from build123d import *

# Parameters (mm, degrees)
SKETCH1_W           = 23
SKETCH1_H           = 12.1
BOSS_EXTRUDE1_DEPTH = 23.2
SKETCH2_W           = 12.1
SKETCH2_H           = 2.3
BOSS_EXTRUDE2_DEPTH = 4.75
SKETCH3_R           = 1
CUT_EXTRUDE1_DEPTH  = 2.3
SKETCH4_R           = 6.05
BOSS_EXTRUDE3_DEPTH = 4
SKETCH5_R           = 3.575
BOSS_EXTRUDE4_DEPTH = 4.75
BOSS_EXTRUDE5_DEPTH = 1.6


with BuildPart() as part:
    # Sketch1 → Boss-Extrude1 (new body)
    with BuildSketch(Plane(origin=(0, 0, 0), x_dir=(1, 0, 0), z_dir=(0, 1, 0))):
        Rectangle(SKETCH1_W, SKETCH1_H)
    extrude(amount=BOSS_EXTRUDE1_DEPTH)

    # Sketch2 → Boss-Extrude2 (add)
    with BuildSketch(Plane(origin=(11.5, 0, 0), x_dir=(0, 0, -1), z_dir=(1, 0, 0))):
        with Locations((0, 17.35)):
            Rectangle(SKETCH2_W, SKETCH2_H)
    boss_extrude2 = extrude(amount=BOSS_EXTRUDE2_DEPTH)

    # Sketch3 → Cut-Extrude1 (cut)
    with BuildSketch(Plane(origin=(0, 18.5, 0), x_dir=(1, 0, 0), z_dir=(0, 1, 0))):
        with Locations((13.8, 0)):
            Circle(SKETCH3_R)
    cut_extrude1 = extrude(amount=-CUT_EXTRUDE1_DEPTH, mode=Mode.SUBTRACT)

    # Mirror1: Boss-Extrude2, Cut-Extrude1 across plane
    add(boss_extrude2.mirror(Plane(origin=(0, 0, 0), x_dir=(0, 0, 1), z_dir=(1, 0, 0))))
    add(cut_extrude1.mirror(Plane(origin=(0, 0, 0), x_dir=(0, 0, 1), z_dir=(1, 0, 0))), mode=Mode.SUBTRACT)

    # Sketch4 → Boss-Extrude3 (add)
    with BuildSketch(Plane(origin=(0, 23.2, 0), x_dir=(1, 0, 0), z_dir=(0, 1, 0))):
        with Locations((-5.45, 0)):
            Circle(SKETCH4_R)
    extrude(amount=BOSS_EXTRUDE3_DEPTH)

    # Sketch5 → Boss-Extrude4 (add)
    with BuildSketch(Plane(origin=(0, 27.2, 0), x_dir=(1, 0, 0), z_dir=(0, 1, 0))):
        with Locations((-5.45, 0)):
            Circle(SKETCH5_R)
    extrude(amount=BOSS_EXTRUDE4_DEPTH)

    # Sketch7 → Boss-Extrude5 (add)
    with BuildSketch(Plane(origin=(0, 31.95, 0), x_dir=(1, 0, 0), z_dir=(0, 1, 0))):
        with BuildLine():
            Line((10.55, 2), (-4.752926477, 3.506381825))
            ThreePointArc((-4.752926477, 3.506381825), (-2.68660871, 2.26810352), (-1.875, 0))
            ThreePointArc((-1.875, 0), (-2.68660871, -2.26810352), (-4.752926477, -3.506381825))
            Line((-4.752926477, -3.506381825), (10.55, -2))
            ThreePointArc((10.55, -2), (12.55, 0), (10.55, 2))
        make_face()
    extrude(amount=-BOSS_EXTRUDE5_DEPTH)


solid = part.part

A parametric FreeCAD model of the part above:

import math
import FreeCAD as App
import Part
import Sketcher

V = App.Vector
Q = App.Units.Quantity


def add_polygon(sketch, points):
    """Adds a closed chain of lines whose ends are joined by coincident constraints."""
    first, n = sketch.GeometryCount, len(points)
    for a, b in zip(points, points[1:] + points[:1]):
        sketch.addGeometry(Part.LineSegment(App.Vector(*a, 0), App.Vector(*b, 0)), False)
    for i in range(n):
        sketch.addConstraint(Sketcher.Constraint("Coincident", first + i, 2, first + (i + 1) % n, 1))

doc = App.newDocument("Part")
body = doc.addObject("PartDesign::Body", "Body")

# Sketch on XZ plane
sketch1 = body.newObject("Sketcher::SketchObject", "Sketch")
sketch1.AttachmentSupport = (doc.getObject("XZ_Plane"), [""])
sketch1.MapMode = "FlatFace"
add_polygon(sketch1, [(-11.5, -6.05), (-11.5, 6.05), (11.5, 6.05), (11.5, -6.05)])  # lines 0-3
sketch1.addConstraint([
    Sketcher.Constraint("Vertical", 0),
    Sketcher.Constraint("Horizontal", 1),
    Sketcher.Constraint("Vertical", 2),
    Sketcher.Constraint("Horizontal", 3),
    Sketcher.Constraint("Symmetric", 0, 2, 2, 2, -1, 1),
    Sketcher.Constraint("DistanceX", 1, 1, 1, 2, Q("23 mm")),
    Sketcher.Constraint("DistanceY", 0, 1, 0, 2, Q("12.1 mm")),
])
pad1 = body.newObject("PartDesign::Pad", "Pad")
pad1.Profile = sketch1
pad1.Length = 23.2
pad1.Reversed = True

# Sketch on YZ plane
sketch2 = body.newObject("Sketcher::SketchObject", "Sketch001")
sketch2.AttachmentSupport = (doc.getObject("YZ_Plane"), [""])
sketch2.MapMode = "FlatFace"
sketch2.AttachmentOffset = App.Placement(V(0, 0, 11.5), App.Rotation())
add_polygon(sketch2, [(18.5, 6.05), (16.2, 6.05), (16.2, -6.05), (18.5, -6.05)])  # lines 0-3
sketch2.addConstraint([
    Sketcher.Constraint("Horizontal", 0),
    Sketcher.Constraint("Vertical", 1),
    Sketcher.Constraint("Horizontal", 2),
    Sketcher.Constraint("Vertical", 3),
    Sketcher.Constraint("DistanceX", 0, 2, 0, 1, Q("2.3 mm")),
    Sketcher.Constraint("DistanceY", 1, 2, 1, 1, Q("12.1 mm")),
    Sketcher.Constraint("DistanceX", -1, 1, 0, 2, Q("16.2 mm")),
    Sketcher.Constraint("DistanceY", -1, 1, 0, 2, Q("6.05 mm")),
])
pad2 = body.newObject("PartDesign::Pad", "Pad001")
pad2.Profile = sketch2
pad2.Length = 4.75

# Sketch on XZ plane
sketch3 = body.newObject("Sketcher::SketchObject", "Sketch002")
sketch3.AttachmentSupport = (doc.getObject("XZ_Plane"), [""])
sketch3.MapMode = "FlatFace"
sketch3.AttachmentOffset = App.Placement(V(0, 0, -18.5), App.Rotation())
sketch3.addGeometry(Part.Circle(V(13.8, 0, 0), V(0, 0, 1), 1), False)
sketch3.addConstraint([
    Sketcher.Constraint("PointOnObject", 0, 3, -1),
    Sketcher.Constraint("Diameter", 0, Q("2 mm")),
    Sketcher.Constraint("DistanceX", -1, 1, 0, 3, Q("13.8 mm")),
])
pocket1 = body.newObject("PartDesign::Pocket", "Pocket")
pocket1.Profile = sketch3
pocket1.Length = 2.3
pocket1.Reversed = True
doc.recompute()

mirrored = body.newObject("PartDesign::Mirrored", "Mirrored")
mirrored.Originals = [pad2, pocket1]
mirrored.MirrorPlane = (doc.getObject("YZ_Plane"), [""])
body.Tip = mirrored

# Sketch on XZ plane
sketch4 = body.newObject("Sketcher::SketchObject", "Sketch003")
sketch4.AttachmentSupport = (doc.getObject("XZ_Plane"), [""])
sketch4.MapMode = "FlatFace"
sketch4.AttachmentOffset = App.Placement(V(0, 0, -23.2), App.Rotation())
sketch4.addGeometry(Part.Circle(V(-5.45, 0, 0), V(0, 0, 1), 6.05), False)
sketch4.addConstraint([
    Sketcher.Constraint("PointOnObject", 0, 3, -1),
    Sketcher.Constraint("Diameter", 0, Q("12.1 mm")),
    Sketcher.Constraint("DistanceX", 0, 3, -1, 1, Q("5.45 mm")),
])
pad3 = body.newObject("PartDesign::Pad", "Pad002")
pad3.Profile = sketch4
pad3.Length = 4
pad3.Reversed = True

# Sketch on XZ plane
sketch5 = body.newObject("Sketcher::SketchObject", "Sketch004")
sketch5.AttachmentSupport = (doc.getObject("XZ_Plane"), [""])
sketch5.MapMode = "FlatFace"
sketch5.AttachmentOffset = App.Placement(V(0, 0, -27.2), App.Rotation())
sketch5.addGeometry(Part.Circle(V(-5.45, 0, 0), V(0, 0, 1), 3.575), False)
sketch5.addConstraint([
    Sketcher.Constraint("PointOnObject", 0, 3, -1),
    Sketcher.Constraint("Diameter", 0, Q("7.15 mm")),
    Sketcher.Constraint("DistanceX", 0, 3, -1, 1, Q("5.45 mm")),
])
pad4 = body.newObject("PartDesign::Pad", "Pad003")
pad4.Profile = sketch5
pad4.Length = 4.75
pad4.Reversed = True

# Sketch on XZ plane
sketch6 = body.newObject("Sketcher::SketchObject", "Sketch005")
sketch6.AttachmentSupport = (doc.getObject("XZ_Plane"), [""])
sketch6.MapMode = "FlatFace"
sketch6.AttachmentOffset = App.Placement(V(0, 0, -31.95), App.Rotation())
sketch6.addGeometry([
    Part.LineSegment(V(10.55, -2, 0), V(-4.752926, -3.506382, 0)),  # 0
    Part.ArcOfCircle(Part.Circle(V(-5.45, 0, 0), V(0, 0, 1), 3.575), math.radians(-78.756118), math.radians(0)),  # 1
    Part.ArcOfCircle(Part.Circle(V(-5.45, 0, 0), V(0, 0, 1), 3.575), math.radians(0), math.radians(78.756118)),  # 2
    Part.LineSegment(V(-4.752926, 3.506382, 0), V(10.55, 2, 0)),  # 3
    Part.ArcOfCircle(Part.Circle(V(10.55, 0, 0), V(0, 0, 1), 2), math.radians(-90), math.radians(90)),  # 4
], False)
sketch6.addConstraint([
    Sketcher.Constraint("Coincident", 0, 2, 1, 1),
    Sketcher.Constraint("Tangent", 1, 2, 2, 1),
    Sketcher.Constraint("Coincident", 2, 2, 3, 1),
    Sketcher.Constraint("Coincident", 3, 2, 4, 2),
    Sketcher.Constraint("Coincident", 4, 1, 0, 1),
    Sketcher.Constraint("Equal", 1, 2),
    Sketcher.Constraint("Symmetric", 0, 2, 2, 2, -1),
    Sketcher.Constraint("Symmetric", 3, 2, 4, 1, -1),
    Sketcher.Constraint("PointOnObject", 1, 2, -1),
    Sketcher.Constraint("Vertical", 4, 3, 3, 2),
    Sketcher.Constraint("Radius", 4, Q("2 mm")),
    Sketcher.Constraint("Radius", 1, Q("3.575 mm")),
    Sketcher.Constraint("DistanceX", 1, 3, 4, 3, Q("16 mm")),
    Sketcher.Constraint("DistanceX", 1, 3, -1, 1, Q("5.45 mm")),
    Sketcher.Constraint("Distance", 0, Q("15.37689 mm")),
])
pad5 = body.newObject("PartDesign::Pad", "Pad004")
pad5.Profile = sketch6
pad5.Length = 1.6

doc.recompute()
